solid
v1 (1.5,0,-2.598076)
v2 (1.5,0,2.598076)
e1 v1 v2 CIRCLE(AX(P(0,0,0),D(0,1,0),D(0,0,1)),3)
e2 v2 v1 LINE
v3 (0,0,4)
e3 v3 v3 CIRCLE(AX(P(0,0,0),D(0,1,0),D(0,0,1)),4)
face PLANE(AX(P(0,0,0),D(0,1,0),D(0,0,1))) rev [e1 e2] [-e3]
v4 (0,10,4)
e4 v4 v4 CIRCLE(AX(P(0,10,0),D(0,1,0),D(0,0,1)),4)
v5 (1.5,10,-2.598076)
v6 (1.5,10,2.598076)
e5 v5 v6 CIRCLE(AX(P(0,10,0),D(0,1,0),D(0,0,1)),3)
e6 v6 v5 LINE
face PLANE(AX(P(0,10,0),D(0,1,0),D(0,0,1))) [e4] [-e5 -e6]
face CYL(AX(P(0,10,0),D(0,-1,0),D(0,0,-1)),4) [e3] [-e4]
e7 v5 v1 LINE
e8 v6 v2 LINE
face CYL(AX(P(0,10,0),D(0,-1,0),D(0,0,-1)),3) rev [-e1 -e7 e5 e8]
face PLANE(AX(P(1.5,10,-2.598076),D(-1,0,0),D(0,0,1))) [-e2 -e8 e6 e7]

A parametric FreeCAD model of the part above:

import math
import FreeCAD as App
import Part
import Sketcher
Q = App.Units.Quantity

doc = App.newDocument("Part")
body = doc.addObject("PartDesign::Body", "Body")

# Sketch on XZ plane
sketch1 = body.newObject("Sketcher::SketchObject", "Sketch")
sketch1.AttachmentSupport = (doc.getObject("XZ_Plane"), [""])
sketch1.MapMode = "FlatFace"
sketch1.addGeometry([
    Part.Circle(App.Vector(0, 0, 0), App.Vector(0, 0, 1), 4),
    Part.ArcOfCircle(Part.Circle(App.Vector(0, 0, 0), App.Vector(0, 0, 1), 3), math.radians(60), math.radians(300)),
    Part.LineSegment(App.Vector(1.5, -2.6, 0), App.Vector(1.5, 2.6, 0)),
], False)
sketch1.addConstraint([
    Sketcher.Constraint("Coincident", 1, 1, 2, 2),
    Sketcher.Constraint("Coincident", 2, 1, 1, 2),
    Sketcher.Constraint("Vertical", 2),
    Sketcher.Constraint("Coincident", 0, 3, -1, 1),
    Sketcher.Constraint("Coincident", 1, 3, -1, 1),
    Sketcher.Constraint("Diameter", 0, Q("8 mm")),
    Sketcher.Constraint("Radius", 1, Q("3 mm")),
    Sketcher.Constraint("DistanceX", -1, 1, 1, 1, Q("1.5 mm")),
])
pad1 = body.newObject("PartDesign::Pad", "Pad")
pad1.Profile = sketch1
pad1.Length = 10
pad1.Reversed = True

doc.recompute()
